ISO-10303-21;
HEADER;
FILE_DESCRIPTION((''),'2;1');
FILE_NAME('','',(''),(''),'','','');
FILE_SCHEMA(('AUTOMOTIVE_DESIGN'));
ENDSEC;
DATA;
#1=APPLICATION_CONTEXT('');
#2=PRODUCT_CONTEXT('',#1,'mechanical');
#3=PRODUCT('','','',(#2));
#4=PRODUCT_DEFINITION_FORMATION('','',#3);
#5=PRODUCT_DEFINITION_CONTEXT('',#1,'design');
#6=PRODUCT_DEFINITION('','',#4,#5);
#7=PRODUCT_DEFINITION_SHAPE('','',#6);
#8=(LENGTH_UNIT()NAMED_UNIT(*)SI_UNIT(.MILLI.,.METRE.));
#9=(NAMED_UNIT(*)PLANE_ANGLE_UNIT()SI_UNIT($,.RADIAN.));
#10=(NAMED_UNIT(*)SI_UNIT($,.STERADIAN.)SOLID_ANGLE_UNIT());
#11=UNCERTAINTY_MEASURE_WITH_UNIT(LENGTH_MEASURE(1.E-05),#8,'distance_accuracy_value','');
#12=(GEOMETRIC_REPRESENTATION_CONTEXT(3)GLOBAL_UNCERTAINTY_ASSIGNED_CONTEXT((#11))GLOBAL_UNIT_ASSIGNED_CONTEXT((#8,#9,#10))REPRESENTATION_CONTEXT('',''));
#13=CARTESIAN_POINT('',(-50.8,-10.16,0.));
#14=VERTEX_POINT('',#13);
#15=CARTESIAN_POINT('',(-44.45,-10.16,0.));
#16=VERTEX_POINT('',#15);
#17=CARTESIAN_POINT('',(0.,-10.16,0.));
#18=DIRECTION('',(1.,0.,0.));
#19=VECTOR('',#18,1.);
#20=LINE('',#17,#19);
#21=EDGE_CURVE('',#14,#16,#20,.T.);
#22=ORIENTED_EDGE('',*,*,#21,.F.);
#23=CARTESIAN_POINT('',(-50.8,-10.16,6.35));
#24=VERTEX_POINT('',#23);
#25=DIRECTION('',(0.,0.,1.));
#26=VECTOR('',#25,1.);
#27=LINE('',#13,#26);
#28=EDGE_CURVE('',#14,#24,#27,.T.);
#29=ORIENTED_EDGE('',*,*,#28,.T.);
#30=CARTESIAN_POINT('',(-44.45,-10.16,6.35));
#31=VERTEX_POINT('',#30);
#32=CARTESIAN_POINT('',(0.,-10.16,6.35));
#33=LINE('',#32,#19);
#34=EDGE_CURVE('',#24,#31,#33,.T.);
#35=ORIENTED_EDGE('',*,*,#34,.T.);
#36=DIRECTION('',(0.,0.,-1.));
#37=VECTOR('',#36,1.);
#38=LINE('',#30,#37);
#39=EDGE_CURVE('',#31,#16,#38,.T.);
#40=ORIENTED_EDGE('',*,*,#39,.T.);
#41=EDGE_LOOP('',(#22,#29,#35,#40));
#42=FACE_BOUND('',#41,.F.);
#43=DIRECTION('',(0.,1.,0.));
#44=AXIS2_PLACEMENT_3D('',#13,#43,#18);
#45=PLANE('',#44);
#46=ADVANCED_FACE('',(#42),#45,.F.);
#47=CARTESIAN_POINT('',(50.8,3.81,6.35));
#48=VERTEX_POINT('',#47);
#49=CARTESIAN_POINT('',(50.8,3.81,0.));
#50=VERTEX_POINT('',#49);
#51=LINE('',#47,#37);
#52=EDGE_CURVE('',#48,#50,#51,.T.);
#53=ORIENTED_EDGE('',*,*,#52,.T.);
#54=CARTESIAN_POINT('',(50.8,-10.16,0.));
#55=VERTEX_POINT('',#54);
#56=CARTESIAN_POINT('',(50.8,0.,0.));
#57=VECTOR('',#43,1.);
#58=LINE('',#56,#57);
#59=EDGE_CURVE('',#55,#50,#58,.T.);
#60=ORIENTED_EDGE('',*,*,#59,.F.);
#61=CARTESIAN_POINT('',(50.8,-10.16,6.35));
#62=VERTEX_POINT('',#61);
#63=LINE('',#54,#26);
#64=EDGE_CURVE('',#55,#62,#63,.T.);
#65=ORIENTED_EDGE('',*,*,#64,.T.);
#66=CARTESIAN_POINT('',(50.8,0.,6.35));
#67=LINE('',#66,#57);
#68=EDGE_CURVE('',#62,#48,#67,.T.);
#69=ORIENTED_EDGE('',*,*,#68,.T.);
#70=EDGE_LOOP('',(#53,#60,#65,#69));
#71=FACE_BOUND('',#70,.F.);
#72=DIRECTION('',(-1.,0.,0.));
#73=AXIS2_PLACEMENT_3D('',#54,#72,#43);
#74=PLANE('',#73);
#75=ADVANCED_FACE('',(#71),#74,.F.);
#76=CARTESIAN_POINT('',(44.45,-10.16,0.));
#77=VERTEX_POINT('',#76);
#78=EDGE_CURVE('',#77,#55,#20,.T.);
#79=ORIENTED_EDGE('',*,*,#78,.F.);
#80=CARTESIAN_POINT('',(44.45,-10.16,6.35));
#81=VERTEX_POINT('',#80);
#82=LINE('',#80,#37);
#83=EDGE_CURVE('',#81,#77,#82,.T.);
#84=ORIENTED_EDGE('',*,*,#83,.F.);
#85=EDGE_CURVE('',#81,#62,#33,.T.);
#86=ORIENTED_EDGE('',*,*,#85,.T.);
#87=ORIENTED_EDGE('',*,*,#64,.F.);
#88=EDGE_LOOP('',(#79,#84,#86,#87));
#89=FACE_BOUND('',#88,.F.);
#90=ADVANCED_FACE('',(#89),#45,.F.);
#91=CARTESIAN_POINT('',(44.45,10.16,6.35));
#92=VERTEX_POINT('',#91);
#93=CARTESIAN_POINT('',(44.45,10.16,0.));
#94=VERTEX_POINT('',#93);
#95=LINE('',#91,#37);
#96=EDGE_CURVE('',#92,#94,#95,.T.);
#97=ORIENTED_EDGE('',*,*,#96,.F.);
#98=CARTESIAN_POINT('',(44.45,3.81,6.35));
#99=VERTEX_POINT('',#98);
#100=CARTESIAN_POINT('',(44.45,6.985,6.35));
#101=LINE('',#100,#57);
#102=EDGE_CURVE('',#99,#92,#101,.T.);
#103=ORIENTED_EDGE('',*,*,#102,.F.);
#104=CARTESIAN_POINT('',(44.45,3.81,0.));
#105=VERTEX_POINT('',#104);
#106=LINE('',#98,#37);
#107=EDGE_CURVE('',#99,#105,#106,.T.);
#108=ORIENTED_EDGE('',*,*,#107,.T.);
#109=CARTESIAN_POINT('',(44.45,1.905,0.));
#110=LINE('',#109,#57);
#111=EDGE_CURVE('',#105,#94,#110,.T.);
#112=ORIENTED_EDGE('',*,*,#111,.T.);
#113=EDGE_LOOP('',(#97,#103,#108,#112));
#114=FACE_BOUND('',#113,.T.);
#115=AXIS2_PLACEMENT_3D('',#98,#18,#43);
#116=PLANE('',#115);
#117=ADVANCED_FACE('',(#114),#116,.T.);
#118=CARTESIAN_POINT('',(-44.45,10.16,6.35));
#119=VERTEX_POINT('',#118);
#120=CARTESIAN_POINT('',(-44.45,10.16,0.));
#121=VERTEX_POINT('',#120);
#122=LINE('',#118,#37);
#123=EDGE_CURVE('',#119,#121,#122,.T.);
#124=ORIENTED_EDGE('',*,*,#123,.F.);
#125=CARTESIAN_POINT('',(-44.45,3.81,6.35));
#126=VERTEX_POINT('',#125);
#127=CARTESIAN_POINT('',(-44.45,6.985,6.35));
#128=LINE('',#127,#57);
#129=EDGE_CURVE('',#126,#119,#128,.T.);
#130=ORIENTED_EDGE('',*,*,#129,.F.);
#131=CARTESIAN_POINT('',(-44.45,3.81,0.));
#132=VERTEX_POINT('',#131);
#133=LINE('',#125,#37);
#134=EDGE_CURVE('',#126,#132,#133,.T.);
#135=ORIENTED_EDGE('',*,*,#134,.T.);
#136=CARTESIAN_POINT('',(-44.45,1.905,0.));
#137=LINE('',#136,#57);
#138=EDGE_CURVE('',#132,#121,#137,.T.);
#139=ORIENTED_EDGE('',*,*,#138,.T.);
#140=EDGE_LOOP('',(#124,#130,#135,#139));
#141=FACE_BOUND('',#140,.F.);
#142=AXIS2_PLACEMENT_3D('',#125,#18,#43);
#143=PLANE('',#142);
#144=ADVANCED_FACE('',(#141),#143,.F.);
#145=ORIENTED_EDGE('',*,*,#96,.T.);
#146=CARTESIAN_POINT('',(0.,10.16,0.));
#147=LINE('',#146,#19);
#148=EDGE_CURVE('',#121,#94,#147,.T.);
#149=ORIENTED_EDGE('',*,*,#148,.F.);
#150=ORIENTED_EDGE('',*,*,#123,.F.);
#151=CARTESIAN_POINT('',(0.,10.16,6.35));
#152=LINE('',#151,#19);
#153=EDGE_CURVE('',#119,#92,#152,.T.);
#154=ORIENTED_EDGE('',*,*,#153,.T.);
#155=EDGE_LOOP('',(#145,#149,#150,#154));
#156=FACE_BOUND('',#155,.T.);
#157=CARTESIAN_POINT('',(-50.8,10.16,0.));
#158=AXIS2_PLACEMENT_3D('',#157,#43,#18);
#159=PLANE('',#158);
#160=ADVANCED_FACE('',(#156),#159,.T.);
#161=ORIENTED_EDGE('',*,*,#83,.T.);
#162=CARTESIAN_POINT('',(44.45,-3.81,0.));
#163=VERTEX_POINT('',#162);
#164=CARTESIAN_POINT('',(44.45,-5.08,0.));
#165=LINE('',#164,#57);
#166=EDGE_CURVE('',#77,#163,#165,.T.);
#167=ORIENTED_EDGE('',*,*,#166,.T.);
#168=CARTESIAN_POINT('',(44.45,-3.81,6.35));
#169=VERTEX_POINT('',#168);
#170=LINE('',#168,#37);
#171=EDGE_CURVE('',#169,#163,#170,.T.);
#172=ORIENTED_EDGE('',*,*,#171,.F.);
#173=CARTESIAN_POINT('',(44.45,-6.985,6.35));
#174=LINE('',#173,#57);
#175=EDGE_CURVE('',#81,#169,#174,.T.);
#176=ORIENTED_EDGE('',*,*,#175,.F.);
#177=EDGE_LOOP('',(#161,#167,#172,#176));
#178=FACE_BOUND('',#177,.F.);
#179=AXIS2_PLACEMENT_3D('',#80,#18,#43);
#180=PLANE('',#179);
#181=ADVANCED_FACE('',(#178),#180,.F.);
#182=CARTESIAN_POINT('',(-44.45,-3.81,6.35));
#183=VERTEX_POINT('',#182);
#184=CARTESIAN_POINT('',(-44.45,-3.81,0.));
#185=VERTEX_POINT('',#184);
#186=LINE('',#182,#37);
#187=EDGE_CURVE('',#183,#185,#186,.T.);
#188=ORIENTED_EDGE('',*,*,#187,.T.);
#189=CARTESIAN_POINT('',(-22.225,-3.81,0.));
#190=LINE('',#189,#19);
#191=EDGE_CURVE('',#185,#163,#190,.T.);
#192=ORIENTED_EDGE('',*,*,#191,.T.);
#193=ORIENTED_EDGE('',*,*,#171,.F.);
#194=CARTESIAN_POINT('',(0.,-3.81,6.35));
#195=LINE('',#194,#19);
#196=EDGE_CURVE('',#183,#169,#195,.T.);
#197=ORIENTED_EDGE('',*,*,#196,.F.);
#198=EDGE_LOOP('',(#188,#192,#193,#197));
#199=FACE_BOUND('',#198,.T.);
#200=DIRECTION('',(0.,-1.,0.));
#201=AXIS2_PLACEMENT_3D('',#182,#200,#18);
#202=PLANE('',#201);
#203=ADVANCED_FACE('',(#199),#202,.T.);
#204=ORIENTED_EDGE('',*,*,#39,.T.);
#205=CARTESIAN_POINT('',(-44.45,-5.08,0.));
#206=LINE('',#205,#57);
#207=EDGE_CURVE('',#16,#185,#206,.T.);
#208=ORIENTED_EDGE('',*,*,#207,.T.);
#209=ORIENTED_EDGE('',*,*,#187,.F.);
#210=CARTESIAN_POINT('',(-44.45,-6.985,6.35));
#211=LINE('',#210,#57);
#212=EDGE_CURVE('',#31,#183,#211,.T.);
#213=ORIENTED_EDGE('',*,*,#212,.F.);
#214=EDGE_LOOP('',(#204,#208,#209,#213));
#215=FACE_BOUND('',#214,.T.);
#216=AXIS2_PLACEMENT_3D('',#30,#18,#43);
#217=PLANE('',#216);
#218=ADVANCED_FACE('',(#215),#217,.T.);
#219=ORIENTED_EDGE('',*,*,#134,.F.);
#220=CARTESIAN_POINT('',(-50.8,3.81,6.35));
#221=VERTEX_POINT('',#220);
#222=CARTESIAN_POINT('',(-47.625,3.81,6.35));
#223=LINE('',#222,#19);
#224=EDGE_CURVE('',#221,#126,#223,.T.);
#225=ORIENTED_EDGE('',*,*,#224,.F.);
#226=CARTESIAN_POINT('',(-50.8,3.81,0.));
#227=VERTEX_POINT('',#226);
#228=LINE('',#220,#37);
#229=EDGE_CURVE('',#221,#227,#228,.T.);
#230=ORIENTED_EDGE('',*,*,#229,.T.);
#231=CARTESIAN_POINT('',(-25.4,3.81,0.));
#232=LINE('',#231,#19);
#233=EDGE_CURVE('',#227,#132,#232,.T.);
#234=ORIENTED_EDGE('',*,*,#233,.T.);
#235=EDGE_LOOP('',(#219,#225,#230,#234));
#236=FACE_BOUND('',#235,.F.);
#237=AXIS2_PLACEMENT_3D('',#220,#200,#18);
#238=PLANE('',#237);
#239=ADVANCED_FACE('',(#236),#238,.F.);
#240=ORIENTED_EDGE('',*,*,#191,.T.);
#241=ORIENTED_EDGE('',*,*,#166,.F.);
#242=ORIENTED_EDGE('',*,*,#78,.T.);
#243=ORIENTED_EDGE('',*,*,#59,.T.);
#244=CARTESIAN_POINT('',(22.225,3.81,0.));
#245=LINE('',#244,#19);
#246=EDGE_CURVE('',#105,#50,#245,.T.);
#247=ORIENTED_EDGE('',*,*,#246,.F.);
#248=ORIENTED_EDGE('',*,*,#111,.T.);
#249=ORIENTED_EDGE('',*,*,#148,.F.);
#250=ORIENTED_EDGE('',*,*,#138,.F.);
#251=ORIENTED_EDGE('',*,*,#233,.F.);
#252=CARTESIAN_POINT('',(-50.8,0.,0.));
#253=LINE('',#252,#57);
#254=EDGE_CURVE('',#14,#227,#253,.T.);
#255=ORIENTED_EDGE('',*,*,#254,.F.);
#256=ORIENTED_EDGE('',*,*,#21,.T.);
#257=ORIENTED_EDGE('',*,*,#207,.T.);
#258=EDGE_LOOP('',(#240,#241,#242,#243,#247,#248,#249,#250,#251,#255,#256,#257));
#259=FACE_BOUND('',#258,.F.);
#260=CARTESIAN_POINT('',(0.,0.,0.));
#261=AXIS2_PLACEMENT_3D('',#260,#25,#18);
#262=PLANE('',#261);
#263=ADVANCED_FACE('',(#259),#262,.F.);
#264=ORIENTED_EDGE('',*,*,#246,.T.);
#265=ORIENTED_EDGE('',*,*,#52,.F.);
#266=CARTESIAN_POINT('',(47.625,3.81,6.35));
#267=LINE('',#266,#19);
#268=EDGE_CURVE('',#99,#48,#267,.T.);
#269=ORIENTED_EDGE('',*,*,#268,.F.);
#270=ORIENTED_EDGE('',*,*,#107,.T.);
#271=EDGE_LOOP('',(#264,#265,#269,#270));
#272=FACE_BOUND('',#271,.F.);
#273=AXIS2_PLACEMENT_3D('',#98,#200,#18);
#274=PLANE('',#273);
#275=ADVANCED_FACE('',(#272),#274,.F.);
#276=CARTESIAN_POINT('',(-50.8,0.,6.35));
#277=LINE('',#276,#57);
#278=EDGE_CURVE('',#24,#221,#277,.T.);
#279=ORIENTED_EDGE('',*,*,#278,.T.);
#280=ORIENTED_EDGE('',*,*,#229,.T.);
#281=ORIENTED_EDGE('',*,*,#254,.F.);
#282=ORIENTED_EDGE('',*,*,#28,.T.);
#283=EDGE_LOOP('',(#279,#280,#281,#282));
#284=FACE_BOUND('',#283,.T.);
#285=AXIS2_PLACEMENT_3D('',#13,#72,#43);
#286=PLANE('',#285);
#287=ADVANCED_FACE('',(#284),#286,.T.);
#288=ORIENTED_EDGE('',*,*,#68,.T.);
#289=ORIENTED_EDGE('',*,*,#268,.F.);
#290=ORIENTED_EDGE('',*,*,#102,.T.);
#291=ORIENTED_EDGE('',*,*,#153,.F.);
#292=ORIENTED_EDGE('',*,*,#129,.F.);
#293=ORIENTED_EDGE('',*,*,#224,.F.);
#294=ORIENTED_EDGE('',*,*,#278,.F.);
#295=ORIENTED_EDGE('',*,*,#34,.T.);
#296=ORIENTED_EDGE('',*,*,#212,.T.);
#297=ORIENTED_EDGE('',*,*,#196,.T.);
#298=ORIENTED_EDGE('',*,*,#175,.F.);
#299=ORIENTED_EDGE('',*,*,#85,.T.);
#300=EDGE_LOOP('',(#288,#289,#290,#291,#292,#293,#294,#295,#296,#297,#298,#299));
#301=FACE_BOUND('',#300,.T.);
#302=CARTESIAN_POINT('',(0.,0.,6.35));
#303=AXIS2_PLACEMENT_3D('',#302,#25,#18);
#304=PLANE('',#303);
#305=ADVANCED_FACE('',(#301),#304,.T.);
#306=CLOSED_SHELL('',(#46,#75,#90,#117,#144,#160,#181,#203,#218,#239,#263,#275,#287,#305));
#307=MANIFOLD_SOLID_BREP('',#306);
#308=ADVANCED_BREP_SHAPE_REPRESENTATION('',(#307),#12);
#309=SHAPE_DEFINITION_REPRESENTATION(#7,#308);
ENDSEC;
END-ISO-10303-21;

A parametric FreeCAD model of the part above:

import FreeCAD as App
import Part
import Sketcher
from FreeCAD import Vector
Q = App.Units.Quantity


def add_polygon(sketch, points):
    """Adds a closed chain of lines whose ends are joined by coincident constraints."""
    first, n = sketch.GeometryCount, len(points)
    for a, b in zip(points, points[1:] + points[:1]):
        sketch.addGeometry(Part.LineSegment(App.Vector(*a, 0), App.Vector(*b, 0)), False)
    for i in range(n):
        sketch.addConstraint(Sketcher.Constraint("Coincident", first + i, 2, first + (i + 1) % n, 1))

doc = App.newDocument("Part")
body = doc.addObject("PartDesign::Body", "Body")

sketch1 = doc.addObject("Sketcher::SketchObject", "Sketch")
body.addObject(sketch1)
sketch1.AttachmentSupport = (doc.XY_Plane, [""])
sketch1.MapMode = "FlatFace"
add_polygon(sketch1, [(-51, 10), (-51, -10), (51, -10), (51, 10)])
sketch1.addConstraint(Sketcher.Constraint("Vertical", 0))
sketch1.addConstraint(Sketcher.Constraint("Horizontal", 1))
sketch1.addConstraint(Sketcher.Constraint("Vertical", 2))
sketch1.addConstraint(Sketcher.Constraint("Horizontal", 3))
sketch1.addConstraint(Sketcher.Constraint("Symmetric", 0, 2, 2, 2, -1, 1))
sketch1.addConstraint(Sketcher.Constraint("DistanceX", 1, 1, 1, 2, Q("4 in")))
sketch1.addConstraint(Sketcher.Constraint("DistanceY", 0, 2, 0, 1, Q("0.8 in")))
pad1 = doc.addObject("PartDesign::Pad", "Pad")
body.addObject(pad1)
pad1.Profile = sketch1
pad1.Length = Q("0.25 in")

sketch2 = doc.addObject("Sketcher::SketchObject", "Sketch001")
body.addObject(sketch2)
sketch2.AttachmentSupport = (doc.XY_Plane, [""])
sketch2.MapMode = "FlatFace"
sketch2.AttachmentOffset = App.Placement(Vector(0, 0, 0.25 * 25.4), App.Rotation())
add_polygon(sketch2, [(-44, -4), (-44, -10), (44, -10), (44, -4)])
add_polygon(sketch2, [(-51, 10), (-51, 4), (-44, 4), (-44, 10)])
add_polygon(sketch2, [(44, 10), (44, 4), (51, 4), (51, 10)])
sketch2.addConstraint(Sketcher.Constraint("Vertical", 0))
sketch2.addConstraint(Sketcher.Constraint("Horizontal", 1))
sketch2.addConstraint(Sketcher.Constraint("Vertical", 2))
sketch2.addConstraint(Sketcher.Constraint("Horizontal", 3))
sketch2.addConstraint(Sketcher.Constraint("Vertical", 4))
sketch2.addConstraint(Sketcher.Constraint("Horizontal", 5))
sketch2.addConstraint(Sketcher.Constraint("Vertical", 6))
sketch2.addConstraint(Sketcher.Constraint("Horizontal", 7))
sketch2.addConstraint(Sketcher.Constraint("Vertical", 8))
sketch2.addConstraint(Sketcher.Constraint("Horizontal", 9))
sketch2.addConstraint(Sketcher.Constraint("Vertical", 10))
sketch2.addConstraint(Sketcher.Constraint("Horizontal", 11))
sketch2.addConstraint(Sketcher.Constraint("Symmetric", 2, 2, 5, 2, -1, 1))
sketch2.addConstraint(Sketcher.Constraint("Symmetric", 3, 2, 8, 2, -1, 1))
sketch2.addConstraint(Sketcher.Constraint("Symmetric", 7, 2, 10, 2, -2))
sketch2.addConstraint(Sketcher.Constraint("Symmetric", 0, 2, 6, 2, -1))
sketch2.addConstraint(Sketcher.Constraint("Equal", 11, 0))
sketch2.addConstraint(Sketcher.Constraint("DistanceX", 1, 1, 1, 2, Q("3.5 in")))
sketch2.addConstraint(Sketcher.Constraint("DistanceX", 4, 2, -1, 1, Q("2 in")))
sketch2.addConstraint(Sketcher.Constraint("DistanceY", 0, 2, -1, 1, Q("0.4 in")))
pocket1 = doc.addObject("PartDesign::Pocket", "Pocket")
body.addObject(pocket1)
pocket1.Profile = sketch2
pocket1.Type = "ThroughAll"

doc.recompute()
